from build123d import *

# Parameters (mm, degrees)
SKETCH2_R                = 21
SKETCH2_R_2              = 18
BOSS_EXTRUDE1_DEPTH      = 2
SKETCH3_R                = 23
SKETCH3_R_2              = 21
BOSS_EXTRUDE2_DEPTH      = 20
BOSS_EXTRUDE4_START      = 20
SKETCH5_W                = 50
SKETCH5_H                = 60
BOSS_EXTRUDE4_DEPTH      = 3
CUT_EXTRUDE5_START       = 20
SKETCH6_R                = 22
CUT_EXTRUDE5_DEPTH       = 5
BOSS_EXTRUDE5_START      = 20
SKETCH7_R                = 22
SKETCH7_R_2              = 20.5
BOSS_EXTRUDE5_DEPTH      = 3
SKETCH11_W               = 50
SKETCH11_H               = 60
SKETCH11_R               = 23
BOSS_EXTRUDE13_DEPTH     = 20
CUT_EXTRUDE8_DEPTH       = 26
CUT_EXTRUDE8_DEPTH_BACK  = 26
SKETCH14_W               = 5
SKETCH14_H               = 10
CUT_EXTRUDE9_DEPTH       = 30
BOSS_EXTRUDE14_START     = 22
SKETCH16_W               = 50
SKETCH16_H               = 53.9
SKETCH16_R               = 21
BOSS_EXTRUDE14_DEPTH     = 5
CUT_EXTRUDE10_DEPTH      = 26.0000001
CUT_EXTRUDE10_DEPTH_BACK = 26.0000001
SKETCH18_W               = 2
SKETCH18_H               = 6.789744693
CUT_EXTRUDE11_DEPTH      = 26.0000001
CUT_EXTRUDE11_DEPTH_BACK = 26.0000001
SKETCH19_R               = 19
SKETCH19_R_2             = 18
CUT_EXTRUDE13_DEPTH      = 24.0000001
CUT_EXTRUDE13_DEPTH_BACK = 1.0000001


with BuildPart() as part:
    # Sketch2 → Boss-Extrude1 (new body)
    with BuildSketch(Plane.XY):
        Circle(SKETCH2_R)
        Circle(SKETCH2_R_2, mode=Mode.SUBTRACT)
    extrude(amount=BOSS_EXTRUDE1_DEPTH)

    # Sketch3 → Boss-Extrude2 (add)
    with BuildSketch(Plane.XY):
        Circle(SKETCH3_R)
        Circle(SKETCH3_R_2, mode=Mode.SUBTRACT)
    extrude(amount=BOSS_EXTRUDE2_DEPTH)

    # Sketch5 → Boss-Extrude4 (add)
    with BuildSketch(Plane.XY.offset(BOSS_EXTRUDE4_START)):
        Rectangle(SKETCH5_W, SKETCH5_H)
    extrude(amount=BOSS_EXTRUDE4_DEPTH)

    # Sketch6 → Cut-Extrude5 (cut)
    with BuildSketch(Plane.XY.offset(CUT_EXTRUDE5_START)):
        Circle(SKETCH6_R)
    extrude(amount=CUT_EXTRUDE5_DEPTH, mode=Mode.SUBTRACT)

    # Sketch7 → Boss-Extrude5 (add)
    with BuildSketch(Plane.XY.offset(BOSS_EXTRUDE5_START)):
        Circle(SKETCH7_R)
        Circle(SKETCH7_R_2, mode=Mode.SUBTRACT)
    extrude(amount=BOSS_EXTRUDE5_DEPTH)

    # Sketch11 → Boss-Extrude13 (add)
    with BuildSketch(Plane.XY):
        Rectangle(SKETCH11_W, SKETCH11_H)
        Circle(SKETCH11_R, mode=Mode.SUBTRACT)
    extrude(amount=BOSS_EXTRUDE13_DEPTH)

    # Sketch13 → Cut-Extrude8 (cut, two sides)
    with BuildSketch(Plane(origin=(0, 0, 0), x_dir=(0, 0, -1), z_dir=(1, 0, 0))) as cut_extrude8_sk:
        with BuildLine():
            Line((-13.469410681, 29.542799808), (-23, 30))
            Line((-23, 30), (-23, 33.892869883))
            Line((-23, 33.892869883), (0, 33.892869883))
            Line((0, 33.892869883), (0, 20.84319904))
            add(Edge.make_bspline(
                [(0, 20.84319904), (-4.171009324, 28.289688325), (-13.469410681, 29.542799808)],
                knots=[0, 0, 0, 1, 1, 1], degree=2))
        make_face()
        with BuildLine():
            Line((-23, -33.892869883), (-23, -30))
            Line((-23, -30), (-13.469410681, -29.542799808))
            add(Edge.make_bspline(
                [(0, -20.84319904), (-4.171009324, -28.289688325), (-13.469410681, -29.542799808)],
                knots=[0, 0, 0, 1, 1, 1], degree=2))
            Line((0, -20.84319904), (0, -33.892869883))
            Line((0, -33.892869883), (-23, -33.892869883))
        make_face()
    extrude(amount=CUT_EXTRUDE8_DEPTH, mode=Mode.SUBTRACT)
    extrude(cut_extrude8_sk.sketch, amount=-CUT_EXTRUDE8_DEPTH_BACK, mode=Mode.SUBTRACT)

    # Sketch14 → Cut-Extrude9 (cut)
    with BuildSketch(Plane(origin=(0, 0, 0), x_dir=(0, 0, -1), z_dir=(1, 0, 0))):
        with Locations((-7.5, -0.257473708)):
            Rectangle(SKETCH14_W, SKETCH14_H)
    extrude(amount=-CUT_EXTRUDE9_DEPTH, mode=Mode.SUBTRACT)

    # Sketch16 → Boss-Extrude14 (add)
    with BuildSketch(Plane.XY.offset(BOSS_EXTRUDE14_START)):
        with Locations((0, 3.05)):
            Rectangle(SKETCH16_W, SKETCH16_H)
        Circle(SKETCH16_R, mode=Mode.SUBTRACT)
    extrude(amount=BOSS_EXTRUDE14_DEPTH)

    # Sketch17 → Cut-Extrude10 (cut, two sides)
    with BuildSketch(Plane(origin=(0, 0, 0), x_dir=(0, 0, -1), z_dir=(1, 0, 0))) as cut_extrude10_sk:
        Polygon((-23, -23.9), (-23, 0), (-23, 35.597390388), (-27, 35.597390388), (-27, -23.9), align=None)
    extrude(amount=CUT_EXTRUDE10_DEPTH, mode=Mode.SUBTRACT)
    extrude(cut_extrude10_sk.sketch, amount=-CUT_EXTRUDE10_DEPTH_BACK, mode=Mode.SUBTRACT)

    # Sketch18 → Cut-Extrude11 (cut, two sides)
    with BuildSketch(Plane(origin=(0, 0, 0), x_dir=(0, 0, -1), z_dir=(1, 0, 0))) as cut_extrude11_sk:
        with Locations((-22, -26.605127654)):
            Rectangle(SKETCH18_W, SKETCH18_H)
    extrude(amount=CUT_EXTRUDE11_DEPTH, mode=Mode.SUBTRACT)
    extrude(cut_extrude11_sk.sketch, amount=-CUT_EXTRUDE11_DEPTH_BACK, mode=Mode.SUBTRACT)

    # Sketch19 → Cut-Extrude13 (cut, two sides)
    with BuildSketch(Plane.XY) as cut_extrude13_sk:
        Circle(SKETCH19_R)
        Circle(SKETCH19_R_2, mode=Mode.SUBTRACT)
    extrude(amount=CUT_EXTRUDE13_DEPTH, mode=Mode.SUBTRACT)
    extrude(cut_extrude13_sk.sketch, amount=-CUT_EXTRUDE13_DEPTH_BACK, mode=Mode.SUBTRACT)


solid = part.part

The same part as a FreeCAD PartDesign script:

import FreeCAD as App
import Part
import Sketcher

V = App.Vector


def add_polygon(sketch, points):
    """Adds a closed chain of lines whose ends are joined by coincident constraints."""
    first, n = sketch.GeometryCount, len(points)
    for a, b in zip(points, points[1:] + points[:1]):
        sketch.addGeometry(Part.LineSegment(App.Vector(*a, 0), App.Vector(*b, 0)), False)
    for i in range(n):
        sketch.addConstraint(Sketcher.Constraint("Coincident", first + i, 2, first + (i + 1) % n, 1))

doc = App.newDocument("Part")
body = doc.addObject("PartDesign::Body", "Body")

sketch1 = body.newObject("Sketcher::SketchObject", "Sketch")
sketch1.AttachmentSupport = (doc.getObject("XY_Plane"), [""])
sketch1.MapMode = "FlatFace"
sketch1.addGeometry([
    Part.Circle(V(0, 0, 0), V(0, 0, 1), 21),
    Part.Circle(V(0, 0, 0), V(0, 0, 1), 18),
], False)
sketch1.addConstraint([
    Sketcher.Constraint("Coincident", 0, 3, -1, 1),
    Sketcher.Constraint("Coincident", 1, 3, -1, 1),
    Sketcher.Constraint("Diameter", 0, 42.0),
    Sketcher.Constraint("Diameter", 1, 36.0),
])
pad1 = body.newObject("PartDesign::Pad", "Pad")
pad1.Profile = sketch1
pad1.Length = 2

sketch2 = body.newObject("Sketcher::SketchObject", "Sketch001")
sketch2.AttachmentSupport = (doc.getObject("XY_Plane"), [""])
sketch2.MapMode = "FlatFace"
sketch2.addGeometry([
    Part.Circle(V(0, 0, 0), V(0, 0, 1), 23),
    Part.Circle(V(0, 0, 0), V(0, 0, 1), 21),
], False)
sketch2.addConstraint([
    Sketcher.Constraint("Coincident", 0, 3, -1, 1),
    Sketcher.Constraint("Coincident", 1, 3, -1, 1),
    Sketcher.Constraint("Diameter", 0, 46.0),
    Sketcher.Constraint("Diameter", 1, 42.0),
])
pad2 = body.newObject("PartDesign::Pad", "Pad001")
pad2.Profile = sketch2
pad2.Length = 20

sketch3 = body.newObject("Sketcher::SketchObject", "Sketch002")
sketch3.AttachmentSupport = (doc.getObject("XY_Plane"), [""])
sketch3.MapMode = "FlatFace"
sketch3.AttachmentOffset = App.Placement(V(0, 0, 20), App.Rotation())
add_polygon(sketch3, [(-25, 30), (-25, -30), (25, -30), (25, 30)])
sketch3.addConstraint([
    Sketcher.Constraint("Vertical", 0),
    Sketcher.Constraint("Horizontal", 1),
    Sketcher.Constraint("Vertical", 2),
    Sketcher.Constraint("Horizontal", 3),
    Sketcher.Constraint("Symmetric", 0, 2, 2, 2, -1, 1),
    Sketcher.Constraint("DistanceX", 1, 1, 1, 2, 50.0),
    Sketcher.Constraint("DistanceY", 0, 2, 0, 1, 60.0),
])
pad3 = body.newObject("PartDesign::Pad", "Pad002")
pad3.Profile = sketch3
pad3.Length = 3

sketch4 = body.newObject("Sketcher::SketchObject", "Sketch003")
sketch4.AttachmentSupport = (doc.getObject("XY_Plane"), [""])
sketch4.MapMode = "FlatFace"
sketch4.AttachmentOffset = App.Placement(V(0, 0, 20), App.Rotation())
sketch4.addGeometry(Part.Circle(V(0, 0, 0), V(0, 0, 1), 22), False)
sketch4.addConstraint([
    Sketcher.Constraint("Coincident", 0, 3, -1, 1),
    Sketcher.Constraint("Diameter", 0, 44.0),
])
pocket1 = body.newObject("PartDesign::Pocket", "Pocket")
pocket1.Profile = sketch4
pocket1.Length = 5
pocket1.Reversed = True

sketch5 = body.newObject("Sketcher::SketchObject", "Sketch004")
sketch5.AttachmentSupport = (doc.getObject("XY_Plane"), [""])
sketch5.MapMode = "FlatFace"
sketch5.AttachmentOffset = App.Placement(V(0, 0, 20), App.Rotation())
sketch5.addGeometry([
    Part.Circle(V(0, 0, 0), V(0, 0, 1), 22),
    Part.Circle(V(0, 0, 0), V(0, 0, 1), 20),
], False)
sketch5.addConstraint([
    Sketcher.Constraint("Coincident", 0, 3, -1, 1),
    Sketcher.Constraint("Coincident", 1, 3, -1, 1),
    Sketcher.Constraint("Diameter", 0, 44.0),
    Sketcher.Constraint("Diameter", 1, 41.0),
])
pad4 = body.newObject("PartDesign::Pad", "Pad003")
pad4.Profile = sketch5
pad4.Length = 3

sketch6 = body.newObject("Sketcher::SketchObject", "Sketch005")
sketch6.AttachmentSupport = (doc.getObject("XY_Plane"), [""])
sketch6.MapMode = "FlatFace"
add_polygon(sketch6, [(-25, 30), (-25, -30), (25, -30), (25, 30)])
sketch6.addGeometry(Part.Circle(V(0, 0, 0), V(0, 0, 1), 23), False)
sketch6.addConstraint([
    Sketcher.Constraint("Vertical", 0),
    Sketcher.Constraint("Horizontal", 1),
    Sketcher.Constraint("Vertical", 2),
    Sketcher.Constraint("Horizontal", 3),
    Sketcher.Constraint("Coincident", 4, 3, -1, 1),
    Sketcher.Constraint("Symmetric", 0, 2, 2, 2, -1, 1),
    Sketcher.Constraint("Diameter", 4, 46.0),
    Sketcher.Constraint("DistanceX", 1, 1, 1, 2, 50.0),
    Sketcher.Constraint("DistanceY", 0, 2, 0, 1, 60.0),
])
pad5 = body.newObject("PartDesign::Pad", "Pad004")
pad5.Profile = sketch6
pad5.Length = 20

sketch7 = body.newObject("Sketcher::SketchObject", "Sketch006")
sketch7.AttachmentSupport = (doc.getObject("YZ_Plane"), [""])
sketch7.MapMode = "FlatFace"
sketch7.addGeometry([
    Part.LineSegment(V(30, 23, 0), V(29.5428, 13.469411, 0)),
    Part.BSplineCurve([V(20.843199, 0, 0), V(28.289688, 4.171009, 0), V(29.5428, 13.469411, 0)], [3, 3], [0, 1], False, 2, [1, 1, 1], False),
    Part.LineSegment(V(20.843199, 0, 0), V(33.89287, 0, 0)),
    Part.LineSegment(V(33.89287, 0, 0), V(33.89287, 23, 0)),
    Part.LineSegment(V(33.89287, 23, 0), V(30, 23, 0)),
    Part.LineSegment(V(-30, 23, 0), V(-33.89287, 23, 0)),
    Part.LineSegment(V(-33.89287, 23, 0), V(-33.89287, 0, 0)),
    Part.LineSegment(V(-33.89287, 0, 0), V(-20.843199, 0, 0)),
    Part.BSplineCurve([V(-20.843199, 0, 0), V(-28.289688, 4.171009, 0), V(-29.5428, 13.469411, 0)], [3, 3], [0, 1], False, 2, [1, 1, 1], False),
    Part.LineSegment(V(-29.5428, 13.469411, 0), V(-30, 23, 0)),
], False)
sketch7.addConstraint([
    Sketcher.Constraint("Block", 1),
    Sketcher.Constraint("Block", 8),
    Sketcher.Constraint("Coincident", 0, 2, 1, 2),
    Sketcher.Constraint("Coincident", 1, 1, 2, 1),
    Sketcher.Constraint("Coincident", 2, 2, 3, 1),
    Sketcher.Constraint("Coincident", 3, 2, 4, 1),
    Sketcher.Constraint("Coincident", 4, 2, 0, 1),
    Sketcher.Constraint("Coincident", 5, 2, 6, 1),
    Sketcher.Constraint("Coincident", 6, 2, 7, 1),
    Sketcher.Constraint("Coincident", 7, 2, 8, 1),
    Sketcher.Constraint("Coincident", 8, 2, 9, 1),
    Sketcher.Constraint("Coincident", 9, 2, 5, 1),
    Sketcher.Constraint("Horizontal", 2),
    Sketcher.Constraint("Vertical", 3),
    Sketcher.Constraint("Horizontal", 4),
    Sketcher.Constraint("Horizontal", 5),
    Sketcher.Constraint("Vertical", 6),
    Sketcher.Constraint("Horizontal", 7),
    Sketcher.Constraint("Symmetric", 3, 2, 5, 2, -2),
    Sketcher.Constraint("Equal", 4, 5),
    Sketcher.Constraint("DistanceY", 3, 1, 3, 2, 23.0),
    Sketcher.Constraint("DistanceX", -1, 1, 4, 2, 30.0),
    Sketcher.Constraint("DistanceX", 2, 1, 2, 2, 13.049671),
])
pocket2 = body.newObject("PartDesign::Pocket", "Pocket001")
pocket2.Profile = sketch7
pocket2.Type = "ThroughAll"
pocket2.Midplane = True

sketch8 = body.newObject("Sketcher::SketchObject", "Sketch007")
sketch8.AttachmentSupport = (doc.getObject("YZ_Plane"), [""])
sketch8.MapMode = "FlatFace"
add_polygon(sketch8, [(5, 10), (-5, 10), (-5, 5), (5, 5)])
sketch8.addConstraint([
    Sketcher.Constraint("Horizontal", 0),
    Sketcher.Constraint("Vertical", 1),
    Sketcher.Constraint("Horizontal", 2),
    Sketcher.Constraint("Vertical", 3),
    Sketcher.Constraint("DistanceX", 0, 2, 0, 1, 10.0),
    Sketcher.Constraint("DistanceY", 1, 2, 1, 1, 5.0),
    Sketcher.Constraint("DistanceY", -1, 1, 0, 2, 10.0),
    Sketcher.Constraint("DistanceX", 0, 2, -1, 1, 5.257474),
])
pocket3 = body.newObject("PartDesign::Pocket", "Pocket002")
pocket3.Profile = sketch8
pocket3.Length = 30

sketch9 = body.newObject("Sketcher::SketchObject", "Sketch008")
sketch9.AttachmentSupport = (doc.getObject("XY_Plane"), [""])
sketch9.MapMode = "FlatFace"
sketch9.AttachmentOffset = App.Placement(V(0, 0, 22), App.Rotation())
add_polygon(sketch9, [(-25, 30), (-25, -24), (25, -24), (25, 30)])
sketch9.addGeometry(Part.Circle(V(0, 0, 0), V(0, 0, 1), 21), False)
sketch9.addConstraint([
    Sketcher.Constraint("Vertical", 0),
    Sketcher.Constraint("Horizontal", 1),
    Sketcher.Constraint("Vertical", 2),
    Sketcher.Constraint("Horizontal", 3),
    Sketcher.Constraint("Coincident", 4, 3, -1, 1),
    Sketcher.Constraint("Diameter", 4, 42.0),
    Sketcher.Constraint("DistanceX", 1, 1, 1, 2, 50.0),
    Sketcher.Constraint("DistanceY", 0, 2, 0, 1, 53.9),
    Sketcher.Constraint("DistanceX", 0, 2, -1, 1, 25.0),
    Sketcher.Constraint("DistanceY", -1, 1, 2, 2, 30.0),
])
pad6 = body.newObject("PartDesign::Pad", "Pad005")
pad6.Profile = sketch9
pad6.Length = 5

sketch10 = body.newObject("Sketcher::SketchObject", "Sketch009")
sketch10.AttachmentSupport = (doc.getObject("YZ_Plane"), [""])
sketch10.MapMode = "FlatFace"
add_polygon(sketch10, [(-23.9, 23), (35.6, 23), (35.6, 27), (-23.9, 27)])
sketch10.addConstraint([
    Sketcher.Constraint("Horizontal", 0),
    Sketcher.Constraint("Vertical", 1),
    Sketcher.Constraint("Horizontal", 2),
    Sketcher.Constraint("Vertical", 3),
    Sketcher.Constraint("DistanceY", 1, 1, 1, 2, 4.0),
    Sketcher.Constraint("DistanceY", -1, 1, 0, 2, 23.0),
    Sketcher.Constraint("DistanceX", 2, 2, -1, 1, 23.9),
    Sketcher.Constraint("DistanceX", 0, 1, 0, 2, 59.49739),
])
pocket4 = body.newObject("PartDesign::Pocket", "Pocket003")
pocket4.Profile = sketch10
pocket4.Type = "ThroughAll"
pocket4.Midplane = True

sketch11 = body.newObject("Sketcher::SketchObject", "Sketch010")
sketch11.AttachmentSupport = (doc.getObject("YZ_Plane"), [""])
sketch11.MapMode = "FlatFace"
add_polygon(sketch11, [(-23.2, 23), (-30, 23), (-30, 21), (-23.2, 21)])
sketch11.addConstraint([
    Sketcher.Constraint("Horizontal", 0),
    Sketcher.Constraint("Vertical", 1),
    Sketcher.Constraint("Horizontal", 2),
    Sketcher.Constraint("Vertical", 3),
    Sketcher.Constraint("DistanceY", 1, 2, 1, 1, 2.0),
    Sketcher.Constraint("DistanceX", 0, 2, -1, 1, 30.0),
    Sketcher.Constraint("DistanceY", -1, 1, 0, 2, 23.0),
    Sketcher.Constraint("DistanceX", 0, 2, 0, 1, 6.789745),
])
pocket5 = body.newObject("PartDesign::Pocket", "Pocket004")
pocket5.Profile = sketch11
pocket5.Type = "ThroughAll"
pocket5.Midplane = True

sketch12 = body.newObject("Sketcher::SketchObject", "Sketch011")
sketch12.AttachmentSupport = (doc.getObject("XY_Plane"), [""])
sketch12.MapMode = "FlatFace"
sketch12.addGeometry([
    Part.Circle(V(0, 0, 0), V(0, 0, 1), 19),
    Part.Circle(V(0, 0, 0), V(0, 0, 1), 18),
], False)
sketch12.addConstraint([
    Sketcher.Constraint("Coincident", 0, 3, -1, 1),
    Sketcher.Constraint("Coincident", 1, 3, -1, 1),
    Sketcher.Constraint("Diameter", 0, 38.0),
    Sketcher.Constraint("Diameter", 1, 36.0),
])
pocket6 = body.newObject("PartDesign::Pocket", "Pocket005")
pocket6.Profile = sketch12
pocket6.Type = "ThroughAll"
pocket6.Midplane = True

doc.recompute()
